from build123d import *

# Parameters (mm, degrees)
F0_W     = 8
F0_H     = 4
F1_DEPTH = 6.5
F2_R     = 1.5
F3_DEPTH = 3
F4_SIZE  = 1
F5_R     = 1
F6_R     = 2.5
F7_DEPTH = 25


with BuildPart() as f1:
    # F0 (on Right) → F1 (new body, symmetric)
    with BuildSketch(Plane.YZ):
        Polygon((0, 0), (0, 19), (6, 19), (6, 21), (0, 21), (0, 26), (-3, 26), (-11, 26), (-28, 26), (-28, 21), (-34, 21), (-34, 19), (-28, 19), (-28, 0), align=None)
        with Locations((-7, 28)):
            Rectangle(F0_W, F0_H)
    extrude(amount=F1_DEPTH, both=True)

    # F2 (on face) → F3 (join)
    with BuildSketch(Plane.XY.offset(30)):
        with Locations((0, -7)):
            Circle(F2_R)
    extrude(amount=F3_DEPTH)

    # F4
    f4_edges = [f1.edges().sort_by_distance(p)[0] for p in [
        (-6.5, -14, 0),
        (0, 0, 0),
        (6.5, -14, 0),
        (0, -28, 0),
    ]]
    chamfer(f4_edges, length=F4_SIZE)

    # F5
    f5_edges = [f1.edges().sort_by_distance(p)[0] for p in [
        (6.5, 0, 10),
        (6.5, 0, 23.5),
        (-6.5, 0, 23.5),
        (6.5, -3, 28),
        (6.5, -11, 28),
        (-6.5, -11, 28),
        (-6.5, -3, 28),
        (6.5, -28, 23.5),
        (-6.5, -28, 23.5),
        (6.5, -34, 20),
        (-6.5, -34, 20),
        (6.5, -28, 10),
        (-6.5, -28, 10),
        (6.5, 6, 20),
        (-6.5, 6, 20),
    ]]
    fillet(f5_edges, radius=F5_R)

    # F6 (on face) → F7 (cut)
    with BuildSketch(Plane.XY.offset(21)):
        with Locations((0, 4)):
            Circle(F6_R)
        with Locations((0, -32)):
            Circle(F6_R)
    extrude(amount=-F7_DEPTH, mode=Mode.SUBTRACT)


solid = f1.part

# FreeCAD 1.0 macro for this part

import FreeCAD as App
import Part
import Sketcher

V = App.Vector


def edges_at(feature, points):
    """Names of the edges that pass closest to the given points."""
    edges = feature.Shape.Edges
    near = lambda p: min(range(len(edges)), key=lambda i: edges[i].distToShape(Part.Vertex(*p))[0])
    return sorted({f"Edge{near(p) + 1}" for p in points})

doc = App.newDocument("Part")
body = doc.addObject("PartDesign::Body", "Body")

# Sketch on YZ plane
sketch1 = body.newObject("Sketcher::SketchObject", "Sketch")
sketch1.AttachmentSupport = (doc.getObject("YZ_Plane"), [""])
sketch1.MapMode = "FlatFace"
sketch1.addGeometry(Part.LineSegment(V(0, 0, 0), V(0, 19, 0)), False)
sketch1.addGeometry(Part.LineSegment(V(0, 19, 0), V(6, 19, 0)), False)
sketch1.addGeometry(Part.LineSegment(V(6, 19, 0), V(6, 21, 0)), False)
sketch1.addGeometry(Part.LineSegment(V(6, 21, 0), V(0, 21, 0)), False)
sketch1.addGeometry(Part.LineSegment(V(0, 21, 0), V(0, 26, 0)), False)
sketch1.addGeometry(Part.LineSegment(V(0, 26, 0), V(-3, 26, 0)), False)
sketch1.addGeometry(Part.LineSegment(V(-3, 26, 0), V(-3, 30, 0)), False)
sketch1.addGeometry(Part.LineSegment(V(-3, 30, 0), V(-11, 30, 0)), False)
sketch1.addGeometry(Part.LineSegment(V(-11, 30, 0), V(-11, 26, 0)), False)
sketch1.addGeometry(Part.LineSegment(V(-11, 26, 0), V(-28, 26, 0)), False)
sketch1.addGeometry(Part.LineSegment(V(-28, 26, 0), V(-28, 21, 0)), False)
sketch1.addGeometry(Part.LineSegment(V(-28, 21, 0), V(-34, 21, 0)), False)
sketch1.addGeometry(Part.LineSegment(V(-34, 21, 0), V(-34, 19, 0)), False)
sketch1.addGeometry(Part.LineSegment(V(-34, 19, 0), V(-28, 19, 0)), False)
sketch1.addGeometry(Part.LineSegment(V(-28, 19, 0), V(-28, 0, 0)), False)
sketch1.addGeometry(Part.LineSegment(V(-28, 0, 0), V(0, 0, 0)), False)
sketch1.addConstraint(Sketcher.Constraint("Coincident", 0, 2, 1, 1))
sketch1.addConstraint(Sketcher.Constraint("Coincident", 1, 2, 2, 1))
sketch1.addConstraint(Sketcher.Constraint("Coincident", 2, 2, 3, 1))
sketch1.addConstraint(Sketcher.Constraint("Coincident", 3, 2, 4, 1))
sketch1.addConstraint(Sketcher.Constraint("Coincident", 4, 2, 5, 1))
sketch1.addConstraint(Sketcher.Constraint("Coincident", 5, 2, 6, 1))
sketch1.addConstraint(Sketcher.Constraint("Coincident", 6, 2, 7, 1))
sketch1.addConstraint(Sketcher.Constraint("Coincident", 7, 2, 8, 1))
sketch1.addConstraint(Sketcher.Constraint("Coincident", 8, 2, 9, 1))
sketch1.addConstraint(Sketcher.Constraint("Coincident", 9, 2, 10, 1))
sketch1.addConstraint(Sketcher.Constraint("Coincident", 10, 2, 11, 1))
sketch1.addConstraint(Sketcher.Constraint("Coincident", 11, 2, 12, 1))
sketch1.addConstraint(Sketcher.Constraint("Coincident", 12, 2, 13, 1))
sketch1.addConstraint(Sketcher.Constraint("Coincident", 13, 2, 14, 1))
sketch1.addConstraint(Sketcher.Constraint("Coincident", 14, 2, 15, 1))
sketch1.addConstraint(Sketcher.Constraint("Coincident", 15, 2, 0, 1))
sketch1.addConstraint(Sketcher.Constraint("Vertical", 0))
sketch1.addConstraint(Sketcher.Constraint("Horizontal", 1))
sketch1.addConstraint(Sketcher.Constraint("Vertical", 2))
sketch1.addConstraint(Sketcher.Constraint("Horizontal", 3))
sketch1.addConstraint(Sketcher.Constraint("Vertical", 4))
sketch1.addConstraint(Sketcher.Constraint("Horizontal", 5))
sketch1.addConstraint(Sketcher.Constraint("Vertical", 6))
sketch1.addConstraint(Sketcher.Constraint("Horizontal", 7))
sketch1.addConstraint(Sketcher.Constraint("Vertical", 8))
sketch1.addConstraint(Sketcher.Constraint("Horizontal", 9))
sketch1.addConstraint(Sketcher.Constraint("Vertical", 10))
sketch1.addConstraint(Sketcher.Constraint("Horizontal", 11))
sketch1.addConstraint(Sketcher.Constraint("Vertical", 12))
sketch1.addConstraint(Sketcher.Constraint("Horizontal", 13))
sketch1.addConstraint(Sketcher.Constraint("Vertical", 14))
sketch1.addConstraint(Sketcher.Constraint("Horizontal", 15))
sketch1.addConstraint(Sketcher.Constraint("Coincident", 15, 2, -1, 1))
sketch1.addConstraint(Sketcher.Constraint("PointOnObject", 3, 2, -2))
sketch1.addConstraint(Sketcher.Constraint("Horizontal", 5, 2, 8, 2))
sketch1.addConstraint(Sketcher.Constraint("Horizontal", 3, 2, 10, 2))
sketch1.addConstraint(Sketcher.Constraint("Horizontal", 1, 2, 12, 2))
sketch1.addConstraint(Sketcher.Constraint("Vertical", 10, 2, 13, 2))
sketch1.addConstraint(Sketcher.Constraint("Equal", 3, 11))
sketch1.addConstraint(Sketcher.Constraint("DistanceX", 1, 1, 1, 2, 6.0))
sketch1.addConstraint(Sketcher.Constraint("DistanceX", 5, 2, 5, 1, 3.0))
sketch1.addConstraint(Sketcher.Constraint("DistanceX", 7, 2, 7, 1, 8.0))
sketch1.addConstraint(Sketcher.Constraint("DistanceX", 9, 2, 9, 1, 17.0))
sketch1.addConstraint(Sketcher.Constraint("DistanceY", 0, 1, 0, 2, 19.0))
sketch1.addConstraint(Sketcher.Constraint("DistanceY", 2, 1, 2, 2, 2.0))
sketch1.addConstraint(Sketcher.Constraint("DistanceY", 4, 1, 4, 2, 5.0))
sketch1.addConstraint(Sketcher.Constraint("DistanceY", 6, 1, 6, 2, 4.0))
pad1 = body.newObject("PartDesign::Pad", "Pad")
pad1.Profile = sketch1
pad1.Length = 13
pad1.Midplane = True

# Sketch on XY plane
sketch2 = body.newObject("Sketcher::SketchObject", "Sketch001")
sketch2.AttachmentSupport = (doc.getObject("XY_Plane"), [""])
sketch2.MapMode = "FlatFace"
sketch2.AttachmentOffset = App.Placement(V(0, 0, 30), App.Rotation())
sketch2.addGeometry(Part.Circle(V(0, -7, 0), V(0, 0, 1), 1.5), False)
sketch2.addConstraint(Sketcher.Constraint("PointOnObject", 0, 3, -2))
sketch2.addConstraint(Sketcher.Constraint("Diameter", 0, 3.0))
sketch2.addConstraint(Sketcher.Constraint("DistanceY", 0, 3, -1, 1, 7.0))
pad2 = body.newObject("PartDesign::Pad", "Pad001")
pad2.Profile = sketch2
pad2.Length = 3
doc.recompute()

chamfer = body.newObject("PartDesign::Chamfer", "Chamfer")
chamfer.Base = (pad2, edges_at(pad2, [
    (-6.5, -14, 0),
    (0, 0, 0),
    (6.5, -14, 0),
    (0, -28, 0),
]))
chamfer.Size = 1
doc.recompute()

fillet = body.newObject("PartDesign::Fillet", "Fillet")
fillet.Base = (chamfer, edges_at(chamfer, [
    (6.5, 0, 10),
    (6.5, 0, 23.5),
    (-6.5, 0, 23.5),
    (6.5, -3, 28),
    (6.5, -11, 28),
    (-6.5, -11, 28),
    (-6.5, -3, 28),
    (6.5, -28, 23.5),
    (-6.5, -28, 23.5),
    (6.5, -34, 20),
    (-6.5, -34, 20),
    (6.5, -28, 10),
    (-6.5, -28, 10),
    (6.5, 6, 20),
    (-6.5, 6, 20),
]))
fillet.Radius = 1

# Sketch on XY plane
sketch3 = body.newObject("Sketcher::SketchObject", "Sketch002")
sketch3.AttachmentSupport = (doc.getObject("XY_Plane"), [""])
sketch3.MapMode = "FlatFace"
sketch3.AttachmentOffset = App.Placement(V(0, 0, 21), App.Rotation())
sketch3.addGeometry(Part.Circle(V(0, 4, 0), V(0, 0, 1), 2.5), False)
sketch3.addGeometry(Part.Circle(V(0, -32, 0), V(0, 0, 1), 2.5), False)
sketch3.addConstraint(Sketcher.Constraint("Equal", 0, 1))
sketch3.addConstraint(Sketcher.Constraint("PointOnObject", 0, 3, -2))
sketch3.addConstraint(Sketcher.Constraint("PointOnObject", 1, 3, -2))
sketch3.addConstraint(Sketcher.Constraint("Diameter", 0, 5.0))
sketch3.addConstraint(Sketcher.Constraint("DistanceY", -1, 1, 0, 3, 4.0))
sketch3.addConstraint(Sketcher.Constraint("DistanceY", 1, 3, -1, 1, 32.0))
pocket1 = body.newObject("PartDesign::Pocket", "Pocket")
pocket1.Profile = sketch3
pocket1.Length = 25

doc.recompute()
